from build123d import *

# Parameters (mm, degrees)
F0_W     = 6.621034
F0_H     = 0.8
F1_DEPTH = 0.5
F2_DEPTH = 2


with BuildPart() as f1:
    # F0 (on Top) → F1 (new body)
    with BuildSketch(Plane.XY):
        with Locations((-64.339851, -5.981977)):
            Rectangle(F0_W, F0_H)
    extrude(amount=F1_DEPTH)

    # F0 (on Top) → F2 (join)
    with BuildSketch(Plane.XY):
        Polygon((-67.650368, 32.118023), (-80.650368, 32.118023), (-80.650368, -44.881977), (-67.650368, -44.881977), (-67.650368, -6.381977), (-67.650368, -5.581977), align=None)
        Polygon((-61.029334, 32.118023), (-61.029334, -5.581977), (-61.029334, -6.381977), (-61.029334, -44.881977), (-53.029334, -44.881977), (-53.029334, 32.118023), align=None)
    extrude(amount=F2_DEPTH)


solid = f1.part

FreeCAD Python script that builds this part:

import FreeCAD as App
import Part
import Sketcher
Q = App.Units.Quantity

doc = App.newDocument("Part")
body = doc.addObject("PartDesign::Body", "Body")

# Sketch on XY plane
sketch1 = body.newObject("Sketcher::SketchObject", "Sketch")
sketch1.AttachmentSupport = (doc.getObject("XY_Plane"), [""])
sketch1.MapMode = "FlatFace"
sketch1.addGeometry([
    Part.LineSegment(App.Vector(-67.7, -5.6, 0), App.Vector(-67.7, -6.4, 0)),
    Part.LineSegment(App.Vector(-67.7, -6.4, 0), App.Vector(-61, -6.4, 0)),
    Part.LineSegment(App.Vector(-61, -6.4, 0), App.Vector(-61, -5.6, 0)),
    Part.LineSegment(App.Vector(-61, -5.6, 0), App.Vector(-67.7, -5.6, 0)),
], False)
sketch1.addConstraint([
    Sketcher.Constraint("Coincident", 0, 2, 1, 1),
    Sketcher.Constraint("Coincident", 1, 2, 2, 1),
    Sketcher.Constraint("Coincident", 2, 2, 3, 1),
    Sketcher.Constraint("Coincident", 3, 2, 0, 1),
    Sketcher.Constraint("Vertical", 0),
    Sketcher.Constraint("Horizontal", 1),
    Sketcher.Constraint("Vertical", 2),
    Sketcher.Constraint("Horizontal", 3),
    Sketcher.Constraint("DistanceY", 0, 2, 0, 1, Q("0.8 mm")),
    Sketcher.Constraint("DistanceX", 1, 1, 1, 2, Q("6.621034 mm")),
    Sketcher.Constraint("DistanceX", 0, 2, -1, 1, Q("67.650368 mm")),
    Sketcher.Constraint("DistanceY", 0, 2, -1, 1, Q("6.381977 mm")),
])
pad1 = body.newObject("PartDesign::Pad", "Pad")
pad1.Profile = sketch1
pad1.Length = 0.5

# Sketch on XY plane
sketch2 = body.newObject("Sketcher::SketchObject", "Sketch001")
sketch2.AttachmentSupport = (doc.getObject("XY_Plane"), [""])
sketch2.MapMode = "FlatFace"
sketch2.addGeometry([
    Part.LineSegment(App.Vector(-68, 32, 0), App.Vector(-81, 32, 0)),  # 0
    Part.LineSegment(App.Vector(-81, 32, 0), App.Vector(-81, -45, 0)),  # 1
    Part.LineSegment(App.Vector(-81, -45, 0), App.Vector(-68, -45, 0)),  # 2
    Part.LineSegment(App.Vector(-68, -45, 0), App.Vector(-68, 32, 0)),  # 3
    Part.LineSegment(App.Vector(-61, 32, 0), App.Vector(-61, -45, 0)),  # 4
    Part.LineSegment(App.Vector(-61, -45, 0), App.Vector(-53, -45, 0)),  # 5
    Part.LineSegment(App.Vector(-53, -45, 0), App.Vector(-53, 32, 0)),  # 6
    Part.LineSegment(App.Vector(-53, 32, 0), App.Vector(-61, 32, 0)),  # 7
], False)
sketch2.addConstraint([
    Sketcher.Constraint("Coincident", 0, 2, 1, 1),
    Sketcher.Constraint("Coincident", 1, 2, 2, 1),
    Sketcher.Constraint("Coincident", 2, 2, 3, 1),
    Sketcher.Constraint("Coincident", 3, 2, 0, 1),
    Sketcher.Constraint("Coincident", 4, 2, 5, 1),
    Sketcher.Constraint("Coincident", 5, 2, 6, 1),
    Sketcher.Constraint("Coincident", 6, 2, 7, 1),
    Sketcher.Constraint("Coincident", 7, 2, 4, 1),
    Sketcher.Constraint("Horizontal", 0),
    Sketcher.Constraint("Vertical", 1),
    Sketcher.Constraint("Horizontal", 2),
    Sketcher.Constraint("Vertical", 3),
    Sketcher.Constraint("Vertical", 4),
    Sketcher.Constraint("Horizontal", 5),
    Sketcher.Constraint("Vertical", 6),
    Sketcher.Constraint("Horizontal", 7),
    Sketcher.Constraint("Horizontal", 2, 2, 4, 2),
    Sketcher.Constraint("Horizontal", 3, 2, 6, 2),
    Sketcher.Constraint("DistanceX", 0, 2, 0, 1, Q("13 mm")),
    Sketcher.Constraint("DistanceX", 5, 1, 5, 2, Q("8 mm")),
    Sketcher.Constraint("DistanceY", 1, 2, 1, 1, Q("77 mm")),
    Sketcher.Constraint("DistanceX", 0, 2, -1, 1, Q("80.650368 mm")),
    Sketcher.Constraint("DistanceY", -1, 1, 0, 2, Q("32.118023 mm")),
    Sketcher.Constraint("DistanceX", 4, 2, -1, 1, Q("61.029334 mm")),
])
pad2 = body.newObject("PartDesign::Pad", "Pad001")
pad2.Profile = sketch2
pad2.Length = 2

doc.recompute()
